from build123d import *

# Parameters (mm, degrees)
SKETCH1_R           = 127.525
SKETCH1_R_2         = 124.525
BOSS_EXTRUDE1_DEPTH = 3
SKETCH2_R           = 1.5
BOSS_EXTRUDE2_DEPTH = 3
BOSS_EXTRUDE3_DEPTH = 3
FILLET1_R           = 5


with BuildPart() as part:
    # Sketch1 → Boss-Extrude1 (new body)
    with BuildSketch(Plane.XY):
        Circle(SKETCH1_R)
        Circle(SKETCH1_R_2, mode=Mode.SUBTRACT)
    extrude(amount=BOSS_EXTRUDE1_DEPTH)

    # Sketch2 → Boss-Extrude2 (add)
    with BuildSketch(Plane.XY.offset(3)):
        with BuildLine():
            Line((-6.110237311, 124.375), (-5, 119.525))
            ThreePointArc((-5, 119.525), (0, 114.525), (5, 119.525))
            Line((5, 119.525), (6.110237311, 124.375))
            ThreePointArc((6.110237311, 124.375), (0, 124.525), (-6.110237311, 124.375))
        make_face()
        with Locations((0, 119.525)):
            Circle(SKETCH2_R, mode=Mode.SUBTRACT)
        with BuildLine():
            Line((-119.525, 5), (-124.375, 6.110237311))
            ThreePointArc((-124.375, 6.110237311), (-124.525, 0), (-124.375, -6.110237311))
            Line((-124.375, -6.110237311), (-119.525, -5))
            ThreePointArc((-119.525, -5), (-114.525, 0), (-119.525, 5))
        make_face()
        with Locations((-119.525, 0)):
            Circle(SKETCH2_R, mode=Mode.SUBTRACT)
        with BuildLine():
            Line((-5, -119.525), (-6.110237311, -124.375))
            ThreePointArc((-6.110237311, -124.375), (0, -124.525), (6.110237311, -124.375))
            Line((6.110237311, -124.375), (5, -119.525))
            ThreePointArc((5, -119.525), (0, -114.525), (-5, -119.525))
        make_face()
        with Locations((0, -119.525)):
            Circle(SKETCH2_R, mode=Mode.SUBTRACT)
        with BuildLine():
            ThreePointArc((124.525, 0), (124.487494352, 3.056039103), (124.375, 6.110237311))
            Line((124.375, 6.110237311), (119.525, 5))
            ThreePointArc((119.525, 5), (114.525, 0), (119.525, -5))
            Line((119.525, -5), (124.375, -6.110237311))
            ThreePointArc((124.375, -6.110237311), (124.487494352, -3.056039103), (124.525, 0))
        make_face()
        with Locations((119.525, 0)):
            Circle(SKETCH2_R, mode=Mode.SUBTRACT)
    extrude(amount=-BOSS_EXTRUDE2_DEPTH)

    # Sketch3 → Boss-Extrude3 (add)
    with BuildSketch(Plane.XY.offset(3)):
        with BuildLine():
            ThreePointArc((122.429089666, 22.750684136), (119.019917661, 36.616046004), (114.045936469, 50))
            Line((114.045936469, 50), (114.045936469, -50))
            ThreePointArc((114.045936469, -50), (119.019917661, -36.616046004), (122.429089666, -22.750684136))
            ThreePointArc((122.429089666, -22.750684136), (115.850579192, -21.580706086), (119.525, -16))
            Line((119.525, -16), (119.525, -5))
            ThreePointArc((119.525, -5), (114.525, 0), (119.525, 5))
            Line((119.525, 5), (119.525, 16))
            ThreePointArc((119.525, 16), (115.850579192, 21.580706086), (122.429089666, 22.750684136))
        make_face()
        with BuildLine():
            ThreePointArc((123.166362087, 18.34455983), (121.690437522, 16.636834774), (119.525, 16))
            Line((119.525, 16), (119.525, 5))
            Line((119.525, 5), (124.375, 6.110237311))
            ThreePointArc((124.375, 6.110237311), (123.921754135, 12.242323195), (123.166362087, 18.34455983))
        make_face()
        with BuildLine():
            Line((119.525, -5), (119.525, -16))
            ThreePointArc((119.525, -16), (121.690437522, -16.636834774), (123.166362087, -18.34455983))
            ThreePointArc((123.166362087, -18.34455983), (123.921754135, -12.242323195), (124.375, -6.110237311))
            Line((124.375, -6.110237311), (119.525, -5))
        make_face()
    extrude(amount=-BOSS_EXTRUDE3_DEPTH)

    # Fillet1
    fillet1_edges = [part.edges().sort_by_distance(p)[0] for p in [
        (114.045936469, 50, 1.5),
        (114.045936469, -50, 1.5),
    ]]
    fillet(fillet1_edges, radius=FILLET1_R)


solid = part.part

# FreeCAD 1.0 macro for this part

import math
import FreeCAD as App
import Part
import Sketcher
from FreeCAD import Vector


def edges_at(feature, points):
    """Names of the edges that pass closest to the given points."""
    edges = feature.Shape.Edges
    near = lambda p: min(range(len(edges)), key=lambda i: edges[i].distToShape(Part.Vertex(*p))[0])
    return sorted({f"Edge{near(p) + 1}" for p in points})

doc = App.newDocument("Part")
params = doc.addObject("Spreadsheet::Sheet", "Params")
for row, (alias, value) in enumerate([
    ("sketch1_diameter", "255.05 mm"),
    ("sketch1_diameter2", "249.05 mm"),
    ("pad1_length", "3 mm"),
    ("sketch2_diameter", "3 mm"),
    ("sketch2_radius", "5 mm"),
    ("pad2_length", "3 mm"),
    ("sketch3_radius", "4 mm"),
    ("sketch3_radius2", "5 mm"),
    ("sketch3_height", "100 mm"),
    ("pad3_length", "3 mm"),
    ("fillet_radius", "5 mm"),
], start=1):
    params.set(f"A{row}", alias)
    params.set(f"B{row}", "=" + value)
    params.setAlias(f"B{row}", alias)

body = doc.addObject("PartDesign::Body", "Body")

# Sketch on XY plane
sketch1 = body.newObject("Sketcher::SketchObject", "Sketch")
sketch1.AttachmentSupport = (doc.getObject("XY_Plane"), [""])
sketch1.MapMode = "FlatFace"
sketch1.addGeometry([
    Part.Circle(Vector(0, 0, 0), Vector(0, 0, 1), 127.525),
    Part.Circle(Vector(0, 0, 0), Vector(0, 0, 1), 124.525),
], False)
sketch1.addConstraint([
    Sketcher.Constraint("Coincident", 0, 3, -1, 1),
    Sketcher.Constraint("Coincident", 1, 3, -1, 1),
    Sketcher.Constraint("Diameter", 0, 255.05),
    Sketcher.Constraint("Diameter", 1, 249.05),
])
sketch1.setExpression("Constraints[2]", "Params.sketch1_diameter")
sketch1.setExpression("Constraints[3]", "Params.sketch1_diameter2")
pad1 = body.newObject("PartDesign::Pad", "Pad")
pad1.Profile = sketch1
pad1.setExpression("Length", "Params.pad1_length")

# Sketch on XY plane
sketch2 = body.newObject("Sketcher::SketchObject", "Sketch001")
sketch2.AttachmentSupport = (doc.getObject("XY_Plane"), [""])
sketch2.MapMode = "FlatFace"
sketch2.AttachmentOffset = App.Placement(Vector(0, 0, 3), App.Rotation())
sketch2.addGeometry([
    Part.LineSegment(Vector(-6.110237, 124.375, 0), Vector(-5, 119.525, 0)),  # 0
    Part.ArcOfCircle(Part.Circle(Vector(0, 119.525, 0), Vector(0, 0, 1), 5), math.radians(180), math.radians(360)),  # 1
    Part.LineSegment(Vector(5, 119.525, 0), Vector(6.110237, 124.375, 0)),  # 2
    Part.ArcOfCircle(Part.Circle(Vector(0, 0, 0), Vector(0, 0, 1), 124.525), math.radians(87.187461), math.radians(92.812539)),  # 3
    Part.Circle(Vector(0, 119.525, 0), Vector(0, 0, 1), 1.5),  # 4
    Part.LineSegment(Vector(-119.525, 5, 0), Vector(-124.375, 6.110237, 0)),  # 5
    Part.ArcOfCircle(Part.Circle(Vector(0, 0, 0), Vector(0, 0, 1), 124.525), math.radians(177.187461), math.radians(182.812539)),  # 6
    Part.LineSegment(Vector(-124.375, -6.110237, 0), Vector(-119.525, -5, 0)),  # 7
    Part.ArcOfCircle(Part.Circle(Vector(-119.525, 0, 0), Vector(0, 0, 1), 5), math.radians(-90), math.radians(90)),  # 8
    Part.Circle(Vector(-119.525, 0, 0), Vector(0, 0, 1), 1.5),  # 9
    Part.LineSegment(Vector(-5, -119.525, 0), Vector(-6.110237, -124.375, 0)),  # 10
    Part.ArcOfCircle(Part.Circle(Vector(0, 0, 0), Vector(0, 0, 1), 124.525), math.radians(-92.812539), math.radians(-87.187461)),  # 11
    Part.LineSegment(Vector(6.110237, -124.375, 0), Vector(5, -119.525, 0)),  # 12
    Part.ArcOfCircle(Part.Circle(Vector(0, -119.525, 0), Vector(0, 0, 1), 5), math.radians(0), math.radians(180)),  # 13
    Part.Circle(Vector(0, -119.525, 0), Vector(0, 0, 1), 1.5),  # 14
    Part.ArcOfCircle(Part.Circle(Vector(0.000001, 0, 0), Vector(0, 0, 1), 124.524999), math.radians(0), math.radians(2.812539)),  # 15
    Part.LineSegment(Vector(124.375, 6.110237, 0), Vector(119.525, 5, 0)),  # 16
    Part.ArcOfCircle(Part.Circle(Vector(119.525, 0, 0), Vector(0, 0, 1), 5), math.radians(90), math.radians(270)),  # 17
    Part.LineSegment(Vector(119.525, -5, 0), Vector(124.375, -6.110237, 0)),  # 18
    Part.ArcOfCircle(Part.Circle(Vector(0.000001, 0, 0), Vector(0, 0, 1), 124.524999), math.radians(-2.812539), math.radians(0)),  # 19
    Part.Circle(Vector(119.525, 0, 0), Vector(0, 0, 1), 1.5),  # 20
], False)
sketch2.addConstraint([
    Sketcher.Constraint("Coincident", 0, 2, 1, 1),
    Sketcher.Constraint("Coincident", 1, 2, 2, 1),
    Sketcher.Constraint("Coincident", 2, 2, 3, 1),
    Sketcher.Constraint("Coincident", 3, 2, 0, 1),
    Sketcher.Constraint("Coincident", 5, 2, 6, 1),
    Sketcher.Constraint("Coincident", 6, 2, 7, 1),
    Sketcher.Constraint("Coincident", 7, 2, 8, 1),
    Sketcher.Constraint("Coincident", 8, 2, 5, 1),
    Sketcher.Constraint("Coincident", 10, 2, 11, 1),
    Sketcher.Constraint("Coincident", 11, 2, 12, 1),
    Sketcher.Constraint("Coincident", 12, 2, 13, 1),
    Sketcher.Constraint("Coincident", 13, 2, 10, 1),
    Sketcher.Constraint("Coincident", 15, 2, 16, 1),
    Sketcher.Constraint("Coincident", 16, 2, 17, 1),
    Sketcher.Constraint("Coincident", 17, 2, 18, 1),
    Sketcher.Constraint("Coincident", 18, 2, 19, 1),
    Sketcher.Constraint("Tangent", 19, 2, 15, 1),
    Sketcher.Constraint("Coincident", 3, 3, -1, 1),
    Sketcher.Constraint("Coincident", 6, 3, -1, 1),
    Sketcher.Constraint("Coincident", 11, 3, -1, 1),
    Sketcher.Constraint("Coincident", 15, 3, -1, 1),
    Sketcher.Constraint("Coincident", 4, 3, 1, 3),
    Sketcher.Constraint("Coincident", 9, 3, 8, 3),
    Sketcher.Constraint("Coincident", 14, 3, 13, 3),
    Sketcher.Constraint("Coincident", 20, 3, 17, 3),
    Sketcher.Constraint("Equal", 3, 6),
    Sketcher.Constraint("Equal", 1, 8),
    Sketcher.Constraint("Equal", 4, 9),
    Sketcher.Constraint("Equal", 6, 11),
    Sketcher.Constraint("Equal", 8, 13),
    Sketcher.Constraint("Equal", 9, 14),
    Sketcher.Constraint("Equal", 11, 15),
    Sketcher.Constraint("Equal", 13, 17),
    Sketcher.Constraint("Equal", 15, 19),
    Sketcher.Constraint("Equal", 14, 20),
    Sketcher.Constraint("Symmetric", 1, 3, 13, 3, -1, 1),
    Sketcher.Constraint("Symmetric", 8, 3, 17, 3, -1, 1),
    Sketcher.Constraint("Symmetric", 0, 2, 1, 2, -2),
    Sketcher.Constraint("Symmetric", 8, 2, 16, 2, -2),
    Sketcher.Constraint("PointOnObject", 19, 2, -1),
    Sketcher.Constraint("Perpendicular", 2, 5),
    Sketcher.Constraint("Perpendicular", 0, 7),
    Sketcher.Constraint("Perpendicular", 5, 10),
    Sketcher.Constraint("Perpendicular", 7, 12),
    Sketcher.Constraint("Perpendicular", 12, 16),
    Sketcher.Constraint("Perpendicular", 10, 18),
    Sketcher.Constraint("Horizontal", 4, 3, 0, 2),
    Sketcher.Constraint("Horizontal", 2, 2, 3, 2),
    Sketcher.Constraint("Horizontal", 10, 2, 11, 2),
    Sketcher.Constraint("Horizontal", 14, 3, 12, 2),
    Sketcher.Constraint("Horizontal", 6, 2, 18, 2),
    Sketcher.Constraint("Vertical", 9, 3, 7, 2),
    Sketcher.Constraint("Vertical", 7, 2, 8, 2),
    Sketcher.Constraint("Equal", 2, 5),
    Sketcher.Constraint("Diameter", 4, 3.0),
    Sketcher.Constraint("Radius", 1, 5.0),
    Sketcher.Constraint("Radius", 3, 124.525),
    Sketcher.Constraint("DistanceX", 17, 3, 19, 2, 5.0),
    Sketcher.Constraint("DistanceY", 1, 2, 2, 2, 4.85),
])
sketch2.setExpression("Constraints[54]", "Params.sketch2_diameter")
sketch2.setExpression("Constraints[55]", "Params.sketch2_radius")
pad2 = body.newObject("PartDesign::Pad", "Pad001")
pad2.Profile = sketch2
pad2.setExpression("Length", "Params.pad2_length")
pad2.Reversed = True

# Sketch on XY plane
sketch3 = body.newObject("Sketcher::SketchObject", "Sketch002")
sketch3.AttachmentSupport = (doc.getObject("XY_Plane"), [""])
sketch3.MapMode = "FlatFace"
sketch3.AttachmentOffset = App.Placement(Vector(0, 0, 3), App.Rotation())
sketch3.addGeometry([
    Part.ArcOfCircle(Part.Circle(Vector(0, 0, 0), Vector(0, 0, 1), 124.525), math.radians(10.527051), math.radians(23.673598)),  # 0
    Part.LineSegment(Vector(114.045936, 50, 0), Vector(114.045936, -50, 0)),  # 1
    Part.ArcOfCircle(Part.Circle(Vector(0, 0, 0), Vector(0, 0, 1), 124.525), math.radians(-23.673598), math.radians(-10.527051)),  # 2
    Part.ArcOfCircle(Part.Circle(Vector(119.525, -20, 0), Vector(0, 0, 1), 4), math.radians(90), math.radians(316.553967)),  # 3
    Part.ArcOfCircle(Part.Circle(Vector(119.525, -20, 0), Vector(0, 0, 1), 4), math.radians(24.447548), math.radians(90)),  # 4
    Part.ArcOfCircle(Part.Circle(Vector(0, 0, 0), Vector(0, 0, 1), 124.525), math.radians(-8.471433), math.radians(-2.812539)),  # 5
    Part.LineSegment(Vector(124.375, -6.110237, 0), Vector(119.525, -5, 0)),  # 6
    Part.ArcOfCircle(Part.Circle(Vector(119.525, 0, 0), Vector(0, 0, 1), 5), math.radians(90), math.radians(270)),  # 7
    Part.LineSegment(Vector(119.525, 5, 0), Vector(124.375, 6.110237, 0)),  # 8
    Part.ArcOfCircle(Part.Circle(Vector(0, 0, 0), Vector(0, 0, 1), 124.525), math.radians(2.812539), math.radians(8.471433)),  # 9
    Part.ArcOfCircle(Part.Circle(Vector(119.525, 20, 0), Vector(0, 0, 1), 4), math.radians(-90), math.radians(-24.447548)),  # 10
    Part.ArcOfCircle(Part.Circle(Vector(119.525, 20, 0), Vector(0, 0, 1), 4), math.radians(43.446033), math.radians(270)),  # 11
], False)
sketch3.addConstraint([
    Sketcher.Constraint("Coincident", 0, 2, 1, 1),
    Sketcher.Constraint("Coincident", 1, 2, 2, 1),
    Sketcher.Constraint("Coincident", 2, 2, 3, 2),
    Sketcher.Constraint("Tangent", 3, 1, 4, 2),
    Sketcher.Constraint("Coincident", 4, 1, 5, 1),
    Sketcher.Constraint("Coincident", 5, 2, 6, 1),
    Sketcher.Constraint("Coincident", 6, 2, 7, 2),
    Sketcher.Constraint("Coincident", 7, 1, 8, 1),
    Sketcher.Constraint("Coincident", 8, 2, 9, 1),
    Sketcher.Constraint("Coincident", 9, 2, 10, 2),
    Sketcher.Constraint("Tangent", 10, 1, 11, 2),
    Sketcher.Constraint("Coincident", 11, 1, 0, 1),
    Sketcher.Constraint("Vertical", 1),
    Sketcher.Constraint("Coincident", 0, 3, -1, 1),
    Sketcher.Constraint("Coincident", 2, 3, -1, 1),
    Sketcher.Constraint("Coincident", 5, 3, -1, 1),
    Sketcher.Constraint("Coincident", 9, 3, -1, 1),
    Sketcher.Constraint("Equal", 0, 2),
    Sketcher.Constraint("Equal", 3, 4),
    Sketcher.Constraint("Equal", 2, 5),
    Sketcher.Constraint("Equal", 5, 9),
    Sketcher.Constraint("Equal", 4, 10),
    Sketcher.Constraint("Equal", 10, 11),
    Sketcher.Constraint("Symmetric", 3, 3, 10, 3, -1),
    Sketcher.Constraint("Symmetric", 6, 2, 7, 1, -1),
    Sketcher.Constraint("Vertical", 4, 3, 7, 3),
    Sketcher.Constraint("Vertical", 11, 3, 3, 1),
    Sketcher.Constraint("Vertical", 3, 1, 6, 2),
    Sketcher.Constraint("Vertical", 5, 2, 8, 2),
    Sketcher.Constraint("Vertical", 7, 1, 10, 1),
    Sketcher.Constraint("Radius", 3, 4.0),
    Sketcher.Constraint("Radius", 7, 5.0),
    Sketcher.Constraint("DistanceY", 1, 2, 1, 1, 100.0),
    Sketcher.Constraint("DistanceY", 3, 3, -1, 1, 20.0),
    Sketcher.Constraint("Radius", 0, 124.525),
    Sketcher.Constraint("DistanceX", 7, 3, 5, 2, 4.85),
    Sketcher.Constraint("DistanceX", -1, 1, 3, 3, 119.525),
])
sketch3.setExpression("Constraints[30]", "Params.sketch3_radius")
sketch3.setExpression("Constraints[31]", "Params.sketch3_radius2")
sketch3.setExpression("Constraints[32]", "Params.sketch3_height")
pad3 = body.newObject("PartDesign::Pad", "Pad002")
pad3.Profile = sketch3
pad3.setExpression("Length", "Params.pad3_length")
pad3.Reversed = True
doc.recompute()

fillet = body.newObject("PartDesign::Fillet", "Fillet")
fillet.Base = (pad3, edges_at(pad3, [(114.046, 50, 1.5), (114.046, -50, 1.5)]))
fillet.setExpression("Radius", "Params.fillet_radius")

doc.recompute()
